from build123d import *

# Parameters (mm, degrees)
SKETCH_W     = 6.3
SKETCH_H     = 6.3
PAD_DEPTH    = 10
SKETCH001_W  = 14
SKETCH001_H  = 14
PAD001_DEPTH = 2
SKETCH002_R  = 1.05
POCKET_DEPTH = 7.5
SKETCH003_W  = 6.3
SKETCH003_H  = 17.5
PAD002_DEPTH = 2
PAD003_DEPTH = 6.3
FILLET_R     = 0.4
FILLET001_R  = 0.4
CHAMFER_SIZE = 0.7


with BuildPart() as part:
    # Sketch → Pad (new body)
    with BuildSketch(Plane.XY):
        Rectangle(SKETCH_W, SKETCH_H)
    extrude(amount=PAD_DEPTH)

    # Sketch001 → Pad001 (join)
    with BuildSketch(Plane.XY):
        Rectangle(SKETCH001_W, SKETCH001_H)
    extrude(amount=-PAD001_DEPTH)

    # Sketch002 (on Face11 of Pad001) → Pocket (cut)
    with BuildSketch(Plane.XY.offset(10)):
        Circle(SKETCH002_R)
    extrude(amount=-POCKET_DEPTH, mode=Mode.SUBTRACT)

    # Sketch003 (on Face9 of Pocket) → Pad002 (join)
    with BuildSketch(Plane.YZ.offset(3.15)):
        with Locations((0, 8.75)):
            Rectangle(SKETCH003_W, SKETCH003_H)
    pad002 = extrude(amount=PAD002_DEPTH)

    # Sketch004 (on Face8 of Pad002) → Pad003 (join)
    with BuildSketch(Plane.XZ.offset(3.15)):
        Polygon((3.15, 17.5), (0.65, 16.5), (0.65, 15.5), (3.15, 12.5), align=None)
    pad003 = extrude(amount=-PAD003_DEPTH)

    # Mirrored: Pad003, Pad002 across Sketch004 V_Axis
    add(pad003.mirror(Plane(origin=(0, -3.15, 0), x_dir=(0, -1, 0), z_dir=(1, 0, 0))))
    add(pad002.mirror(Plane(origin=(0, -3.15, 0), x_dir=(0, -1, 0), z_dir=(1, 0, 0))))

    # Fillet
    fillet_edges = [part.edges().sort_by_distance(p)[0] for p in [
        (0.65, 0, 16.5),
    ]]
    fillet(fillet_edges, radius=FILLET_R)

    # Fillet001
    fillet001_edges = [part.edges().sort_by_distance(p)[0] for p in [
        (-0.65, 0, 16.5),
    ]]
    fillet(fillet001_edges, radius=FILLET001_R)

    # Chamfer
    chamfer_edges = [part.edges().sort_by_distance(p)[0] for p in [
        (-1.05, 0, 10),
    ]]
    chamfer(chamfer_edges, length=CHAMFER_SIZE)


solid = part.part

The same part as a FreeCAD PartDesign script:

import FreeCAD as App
import Part
import Sketcher
Q = App.Units.Quantity


def edges_at(feature, points):
    """Names of the edges that pass closest to the given points."""
    edges = feature.Shape.Edges
    near = lambda p: min(range(len(edges)), key=lambda i: edges[i].distToShape(Part.Vertex(*p))[0])
    return sorted({f"Edge{near(p) + 1}" for p in points})


def add_polygon(sketch, points):
    """Adds a closed chain of lines whose ends are joined by coincident constraints."""
    first, n = sketch.GeometryCount, len(points)
    for a, b in zip(points, points[1:] + points[:1]):
        sketch.addGeometry(Part.LineSegment(App.Vector(*a, 0), App.Vector(*b, 0)), False)
    for i in range(n):
        sketch.addConstraint(Sketcher.Constraint("Coincident", first + i, 2, first + (i + 1) % n, 1))

doc = App.newDocument("Part")
body = doc.addObject("PartDesign::Body", "Body")

# Sketch on XY plane
sketch1 = body.newObject("Sketcher::SketchObject", "Sketch")
sketch1.AttachmentSupport = (doc.getObject("XY_Plane"), [""])
sketch1.MapMode = "FlatFace"
add_polygon(sketch1, [(-3, 3), (-3, -3), (3, -3), (3, 3)])  # lines 0-3
sketch1.addConstraint([
    Sketcher.Constraint("Vertical", 0),
    Sketcher.Constraint("Horizontal", 1),
    Sketcher.Constraint("Vertical", 2),
    Sketcher.Constraint("Horizontal", 3),
    Sketcher.Constraint("Symmetric", 0, 2, 2, 2, -1, 1),
    Sketcher.Constraint("Equal", 3, 0),
    Sketcher.Constraint("DistanceX", 1, 1, 1, 2, Q("6.3 mm")),
])
pad1 = body.newObject("PartDesign::Pad", "Pad")
pad1.Profile = sketch1
pad1.Length = 10

# Sketch on XY plane
sketch2 = body.newObject("Sketcher::SketchObject", "Sketch001")
sketch2.AttachmentSupport = (doc.getObject("XY_Plane"), [""])
sketch2.MapMode = "FlatFace"
add_polygon(sketch2, [(-7, 7), (-7, -7), (7, -7), (7, 7)])  # lines 0-3
sketch2.addConstraint([
    Sketcher.Constraint("Vertical", 0),
    Sketcher.Constraint("Horizontal", 1),
    Sketcher.Constraint("Vertical", 2),
    Sketcher.Constraint("Horizontal", 3),
    Sketcher.Constraint("Symmetric", 0, 2, 2, 2, -1, 1),
    Sketcher.Constraint("Equal", 3, 0),
    Sketcher.Constraint("DistanceX", 1, 1, 1, 2, Q("14 mm")),
])
pad2 = body.newObject("PartDesign::Pad", "Pad001")
pad2.Profile = sketch2
pad2.Length = 2
pad2.Reversed = True

# Sketch on XY plane
sketch3 = body.newObject("Sketcher::SketchObject", "Sketch002")
sketch3.AttachmentSupport = (doc.getObject("XY_Plane"), [""])
sketch3.MapMode = "FlatFace"
sketch3.AttachmentOffset = App.Placement(App.Vector(0, 0, 10), App.Rotation())
sketch3.addGeometry(Part.Circle(App.Vector(0, 0, 0), App.Vector(0, 0, 1), 1.1), False)
sketch3.addConstraint([
    Sketcher.Constraint("Coincident", 0, 3, -1, 1),
    Sketcher.Constraint("Diameter", 0, Q("2.1 mm")),
])
pocket1 = body.newObject("PartDesign::Pocket", "Pocket")
pocket1.Profile = sketch3
pocket1.Length = 7.5

# Sketch on YZ plane
sketch4 = body.newObject("Sketcher::SketchObject", "Sketch003")
sketch4.AttachmentSupport = (doc.getObject("YZ_Plane"), [""])
sketch4.MapMode = "FlatFace"
sketch4.AttachmentOffset = App.Placement(App.Vector(0, 0, 3.15), App.Rotation())
add_polygon(sketch4, [(-3, 18), (-3, 0), (3, 0), (3, 18)])  # lines 0-3
sketch4.addConstraint([
    Sketcher.Constraint("Vertical", 0),
    Sketcher.Constraint("Horizontal", 1),
    Sketcher.Constraint("Vertical", 2),
    Sketcher.Constraint("Horizontal", 3),
    Sketcher.Constraint("Symmetric", 0, 2, 1, 2, -1, 1),
    Sketcher.Constraint("DistanceX", 1, 1, 1, 2, Q("6.3 mm")),
    Sketcher.Constraint("DistanceY", 0, 2, 0, 1, Q("17.5 mm")),
])
pad3 = body.newObject("PartDesign::Pad", "Pad002")
pad3.Profile = sketch4
pad3.Length = 2

# Sketch on XZ plane
sketch5 = body.newObject("Sketcher::SketchObject", "Sketch004")
sketch5.AttachmentSupport = (doc.getObject("XZ_Plane"), [""])
sketch5.MapMode = "FlatFace"
sketch5.AttachmentOffset = App.Placement(App.Vector(0, 0, 3.15), App.Rotation())
add_polygon(sketch5, [(3.1, 17.5), (0.7, 16.5), (0.7, 15.5), (3.1, 12.5)])  # lines 0-3
sketch5.addConstraint([
    Sketcher.Constraint("Vertical", 1),
    Sketcher.Constraint("Vertical", 3),
    Sketcher.Constraint("DistanceY", 1, 2, 1, 1, Q("1 mm")),
    Sketcher.Constraint("DistanceY", 3, 1, 3, 2, Q("5 mm")),
    Sketcher.Constraint("DistanceY", 2, 2, 1, 2, Q("3 mm")),
    Sketcher.Constraint("DistanceY", -1, 1, 0, 2, Q("16.5 mm")),
    Sketcher.Constraint("DistanceX", 1, 2, 2, 2, Q("2.5 mm")),
    Sketcher.Constraint("DistanceX", -1, 1, 0, 2, Q("0.65 mm")),
])
pad4 = body.newObject("PartDesign::Pad", "Pad003")
pad4.Profile = sketch5
pad4.Length = 6.3
pad4.Reversed = True
doc.recompute()

mirrored = body.newObject("PartDesign::Mirrored", "Mirrored")
mirrored.Originals = [pad4, pad3]
mirrored.MirrorPlane = (doc.getObject("YZ_Plane"), [""])
body.Tip = mirrored
doc.recompute()

fillet = body.newObject("PartDesign::Fillet", "Fillet")
fillet.Base = (mirrored, edges_at(mirrored, [(0.65, 0, 16.5)]))
fillet.Radius = 0.4
doc.recompute()

fillet2 = body.newObject("PartDesign::Fillet", "Fillet001")
fillet2.Base = (fillet, edges_at(fillet, [(-0.65, 0, 16.5)]))
fillet2.Radius = 0.4
doc.recompute()

chamfer = body.newObject("PartDesign::Chamfer", "Chamfer")
chamfer.Base = (fillet2, edges_at(fillet2, [(-1.05, 0, 10)]))
chamfer.Size = 0.7

doc.recompute()
